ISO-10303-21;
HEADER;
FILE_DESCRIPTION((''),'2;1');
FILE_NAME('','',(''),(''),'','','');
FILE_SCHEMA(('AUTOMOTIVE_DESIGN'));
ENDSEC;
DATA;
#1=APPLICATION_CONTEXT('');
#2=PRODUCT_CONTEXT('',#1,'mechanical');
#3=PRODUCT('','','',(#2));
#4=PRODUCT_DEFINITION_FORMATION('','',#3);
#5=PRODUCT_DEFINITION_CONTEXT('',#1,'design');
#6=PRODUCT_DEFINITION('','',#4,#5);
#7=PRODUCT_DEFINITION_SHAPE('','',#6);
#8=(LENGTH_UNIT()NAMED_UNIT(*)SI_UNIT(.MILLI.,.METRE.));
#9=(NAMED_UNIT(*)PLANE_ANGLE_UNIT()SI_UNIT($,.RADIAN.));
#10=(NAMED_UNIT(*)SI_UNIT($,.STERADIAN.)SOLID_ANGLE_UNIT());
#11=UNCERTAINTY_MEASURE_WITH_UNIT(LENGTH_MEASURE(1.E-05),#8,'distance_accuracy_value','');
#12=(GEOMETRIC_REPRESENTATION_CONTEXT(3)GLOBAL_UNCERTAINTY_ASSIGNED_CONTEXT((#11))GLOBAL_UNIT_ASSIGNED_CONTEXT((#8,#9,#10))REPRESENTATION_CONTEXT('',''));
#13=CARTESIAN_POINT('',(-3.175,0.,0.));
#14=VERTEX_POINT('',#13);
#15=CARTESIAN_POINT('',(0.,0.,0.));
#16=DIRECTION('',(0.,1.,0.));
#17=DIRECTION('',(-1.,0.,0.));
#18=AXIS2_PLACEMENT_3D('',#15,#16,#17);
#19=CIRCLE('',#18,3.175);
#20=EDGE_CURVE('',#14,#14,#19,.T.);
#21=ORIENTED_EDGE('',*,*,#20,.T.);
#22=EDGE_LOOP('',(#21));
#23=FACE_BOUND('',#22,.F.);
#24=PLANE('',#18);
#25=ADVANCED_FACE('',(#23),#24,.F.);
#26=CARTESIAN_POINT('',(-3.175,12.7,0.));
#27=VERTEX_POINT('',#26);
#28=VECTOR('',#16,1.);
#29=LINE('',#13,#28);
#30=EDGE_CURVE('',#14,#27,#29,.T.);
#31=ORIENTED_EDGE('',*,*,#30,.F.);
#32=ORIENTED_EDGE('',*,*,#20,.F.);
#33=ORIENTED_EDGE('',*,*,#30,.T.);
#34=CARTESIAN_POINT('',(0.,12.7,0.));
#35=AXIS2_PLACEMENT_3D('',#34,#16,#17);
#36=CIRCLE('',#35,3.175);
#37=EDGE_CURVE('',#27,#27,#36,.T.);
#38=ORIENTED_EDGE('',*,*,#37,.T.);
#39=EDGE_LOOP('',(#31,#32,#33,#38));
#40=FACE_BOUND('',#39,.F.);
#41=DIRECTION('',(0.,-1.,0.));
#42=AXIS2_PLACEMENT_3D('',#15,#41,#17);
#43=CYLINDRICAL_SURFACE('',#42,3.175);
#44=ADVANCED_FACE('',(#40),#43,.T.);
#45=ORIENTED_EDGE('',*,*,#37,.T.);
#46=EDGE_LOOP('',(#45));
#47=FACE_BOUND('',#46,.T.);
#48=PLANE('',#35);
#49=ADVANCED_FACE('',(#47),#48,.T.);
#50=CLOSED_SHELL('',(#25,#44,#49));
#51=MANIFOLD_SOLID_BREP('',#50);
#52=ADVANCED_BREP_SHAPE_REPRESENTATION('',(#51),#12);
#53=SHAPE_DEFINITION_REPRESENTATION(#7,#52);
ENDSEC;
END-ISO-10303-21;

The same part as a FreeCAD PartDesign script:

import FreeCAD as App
import Part
import Sketcher
from FreeCAD import Vector
Q = App.Units.Quantity

doc = App.newDocument("Part")
body = doc.addObject("PartDesign::Body", "Body")

# Sketch on XZ plane
sketch1 = body.newObject("Sketcher::SketchObject", "Sketch")
sketch1.AttachmentSupport = (doc.getObject("XZ_Plane"), [""])
sketch1.MapMode = "FlatFace"
sketch1.addGeometry(Part.Circle(Vector(0, 0, 0), Vector(0, 0, 1), 3.2), False)
sketch1.addConstraint([
    Sketcher.Constraint("Coincident", 0, 3, -1, 1),
    Sketcher.Constraint("Diameter", 0, Q("0.25 in")),
])
pad1 = body.newObject("PartDesign::Pad", "Pad")
pad1.Profile = sketch1
pad1.Length = Q("0.5 in")
pad1.Reversed = True

doc.recompute()
